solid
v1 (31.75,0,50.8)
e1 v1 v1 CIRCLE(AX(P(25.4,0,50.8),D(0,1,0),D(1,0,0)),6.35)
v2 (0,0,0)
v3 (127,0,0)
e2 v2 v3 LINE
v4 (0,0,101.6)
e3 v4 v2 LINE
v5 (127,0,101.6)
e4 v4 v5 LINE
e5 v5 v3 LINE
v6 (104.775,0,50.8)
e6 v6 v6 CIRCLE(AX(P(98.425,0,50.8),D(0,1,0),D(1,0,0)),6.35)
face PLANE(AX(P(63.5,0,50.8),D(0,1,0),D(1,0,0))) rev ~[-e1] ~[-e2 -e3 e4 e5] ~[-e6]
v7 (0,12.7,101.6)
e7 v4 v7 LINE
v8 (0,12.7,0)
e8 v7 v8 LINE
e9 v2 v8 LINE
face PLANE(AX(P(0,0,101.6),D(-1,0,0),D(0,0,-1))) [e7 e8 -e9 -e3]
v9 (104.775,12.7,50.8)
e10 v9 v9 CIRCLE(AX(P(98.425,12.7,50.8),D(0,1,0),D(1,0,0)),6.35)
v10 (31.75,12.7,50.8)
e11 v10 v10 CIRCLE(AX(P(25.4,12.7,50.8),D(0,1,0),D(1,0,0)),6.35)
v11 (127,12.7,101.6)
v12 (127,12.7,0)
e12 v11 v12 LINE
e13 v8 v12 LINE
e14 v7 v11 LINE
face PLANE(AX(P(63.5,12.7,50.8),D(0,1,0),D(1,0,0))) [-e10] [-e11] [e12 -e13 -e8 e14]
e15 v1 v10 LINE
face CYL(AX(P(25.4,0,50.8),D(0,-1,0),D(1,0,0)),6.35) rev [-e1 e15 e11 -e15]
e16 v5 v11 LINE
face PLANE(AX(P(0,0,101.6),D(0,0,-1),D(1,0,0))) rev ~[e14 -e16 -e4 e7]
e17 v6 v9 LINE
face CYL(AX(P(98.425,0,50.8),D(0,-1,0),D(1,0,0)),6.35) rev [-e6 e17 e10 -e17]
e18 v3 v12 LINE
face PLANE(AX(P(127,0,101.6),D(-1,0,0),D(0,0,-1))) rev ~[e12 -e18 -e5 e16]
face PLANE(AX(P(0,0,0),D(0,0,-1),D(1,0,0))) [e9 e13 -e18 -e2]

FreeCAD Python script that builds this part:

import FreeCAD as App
import Part
import Sketcher
Q = App.Units.Quantity


def add_polygon(sketch, points):
    """Adds a closed chain of lines whose ends are joined by coincident constraints."""
    first, n = sketch.GeometryCount, len(points)
    for a, b in zip(points, points[1:] + points[:1]):
        sketch.addGeometry(Part.LineSegment(App.Vector(*a, 0), App.Vector(*b, 0)), False)
    for i in range(n):
        sketch.addConstraint(Sketcher.Constraint("Coincident", first + i, 2, first + (i + 1) % n, 1))

doc = App.newDocument("Part")
params = doc.addObject("Spreadsheet::Sheet", "Params")
for row, (alias, value) in enumerate([
    ("sketch1_diameter", "0.5 in"),
    ("sketch1_width", "5 in"),
    ("sketch1_height", "4 in"),
    ("pad1_length", "0.5 in"),
], start=1):
    params.set(f"A{row}", alias)
    params.set(f"B{row}", "=" + value)
    params.setAlias(f"B{row}", alias)

body = doc.addObject("PartDesign::Body", "Body")

sketch1 = body.newObject("Sketcher::SketchObject", "Sketch")
sketch1.AttachmentSupport = (doc.getObject("XZ_Plane"), [""])
sketch1.MapMode = "FlatFace"
add_polygon(sketch1, [(0, 0), (0, 102), (127, 102), (127, 0)])
sketch1.addGeometry(Part.Circle(App.Vector(25, 51, 0), App.Vector(0, 0, 1), 6), False)
sketch1.addGeometry(Part.Circle(App.Vector(98, 51, 0), App.Vector(0, 0, 1), 6), False)
sketch1.addConstraint([
    Sketcher.Constraint("Vertical", 0),
    Sketcher.Constraint("Horizontal", 1),
    Sketcher.Constraint("Vertical", 2),
    Sketcher.Constraint("Horizontal", 3),
    Sketcher.Constraint("Coincident", 3, 2, -1, 1),
    Sketcher.Constraint("Equal", 4, 5),
    Sketcher.Constraint("Horizontal", 4, 3, 5, 3),
    Sketcher.Constraint("Diameter", 4, Q("0.5 in")),
    Sketcher.Constraint("DistanceX", 1, 1, 1, 2, Q("5 in")),
    Sketcher.Constraint("DistanceY", 0, 1, 0, 2, Q("4 in")),
    Sketcher.Constraint("DistanceX", -1, 1, 4, 3, Q("1 in")),
    Sketcher.Constraint("DistanceY", -1, 1, 4, 3, Q("2 in")),
    Sketcher.Constraint("DistanceX", -1, 1, 5, 3, Q("3.875 in")),
])
sketch1.setExpression("Constraints[11]", "Params.sketch1_diameter")
sketch1.setExpression("Constraints[12]", "Params.sketch1_width")
sketch1.setExpression("Constraints[13]", "Params.sketch1_height")
pad1 = body.newObject("PartDesign::Pad", "Pad")
pad1.Profile = sketch1
pad1.setExpression("Length", "Params.pad1_length")
pad1.Reversed = True

doc.recompute()
